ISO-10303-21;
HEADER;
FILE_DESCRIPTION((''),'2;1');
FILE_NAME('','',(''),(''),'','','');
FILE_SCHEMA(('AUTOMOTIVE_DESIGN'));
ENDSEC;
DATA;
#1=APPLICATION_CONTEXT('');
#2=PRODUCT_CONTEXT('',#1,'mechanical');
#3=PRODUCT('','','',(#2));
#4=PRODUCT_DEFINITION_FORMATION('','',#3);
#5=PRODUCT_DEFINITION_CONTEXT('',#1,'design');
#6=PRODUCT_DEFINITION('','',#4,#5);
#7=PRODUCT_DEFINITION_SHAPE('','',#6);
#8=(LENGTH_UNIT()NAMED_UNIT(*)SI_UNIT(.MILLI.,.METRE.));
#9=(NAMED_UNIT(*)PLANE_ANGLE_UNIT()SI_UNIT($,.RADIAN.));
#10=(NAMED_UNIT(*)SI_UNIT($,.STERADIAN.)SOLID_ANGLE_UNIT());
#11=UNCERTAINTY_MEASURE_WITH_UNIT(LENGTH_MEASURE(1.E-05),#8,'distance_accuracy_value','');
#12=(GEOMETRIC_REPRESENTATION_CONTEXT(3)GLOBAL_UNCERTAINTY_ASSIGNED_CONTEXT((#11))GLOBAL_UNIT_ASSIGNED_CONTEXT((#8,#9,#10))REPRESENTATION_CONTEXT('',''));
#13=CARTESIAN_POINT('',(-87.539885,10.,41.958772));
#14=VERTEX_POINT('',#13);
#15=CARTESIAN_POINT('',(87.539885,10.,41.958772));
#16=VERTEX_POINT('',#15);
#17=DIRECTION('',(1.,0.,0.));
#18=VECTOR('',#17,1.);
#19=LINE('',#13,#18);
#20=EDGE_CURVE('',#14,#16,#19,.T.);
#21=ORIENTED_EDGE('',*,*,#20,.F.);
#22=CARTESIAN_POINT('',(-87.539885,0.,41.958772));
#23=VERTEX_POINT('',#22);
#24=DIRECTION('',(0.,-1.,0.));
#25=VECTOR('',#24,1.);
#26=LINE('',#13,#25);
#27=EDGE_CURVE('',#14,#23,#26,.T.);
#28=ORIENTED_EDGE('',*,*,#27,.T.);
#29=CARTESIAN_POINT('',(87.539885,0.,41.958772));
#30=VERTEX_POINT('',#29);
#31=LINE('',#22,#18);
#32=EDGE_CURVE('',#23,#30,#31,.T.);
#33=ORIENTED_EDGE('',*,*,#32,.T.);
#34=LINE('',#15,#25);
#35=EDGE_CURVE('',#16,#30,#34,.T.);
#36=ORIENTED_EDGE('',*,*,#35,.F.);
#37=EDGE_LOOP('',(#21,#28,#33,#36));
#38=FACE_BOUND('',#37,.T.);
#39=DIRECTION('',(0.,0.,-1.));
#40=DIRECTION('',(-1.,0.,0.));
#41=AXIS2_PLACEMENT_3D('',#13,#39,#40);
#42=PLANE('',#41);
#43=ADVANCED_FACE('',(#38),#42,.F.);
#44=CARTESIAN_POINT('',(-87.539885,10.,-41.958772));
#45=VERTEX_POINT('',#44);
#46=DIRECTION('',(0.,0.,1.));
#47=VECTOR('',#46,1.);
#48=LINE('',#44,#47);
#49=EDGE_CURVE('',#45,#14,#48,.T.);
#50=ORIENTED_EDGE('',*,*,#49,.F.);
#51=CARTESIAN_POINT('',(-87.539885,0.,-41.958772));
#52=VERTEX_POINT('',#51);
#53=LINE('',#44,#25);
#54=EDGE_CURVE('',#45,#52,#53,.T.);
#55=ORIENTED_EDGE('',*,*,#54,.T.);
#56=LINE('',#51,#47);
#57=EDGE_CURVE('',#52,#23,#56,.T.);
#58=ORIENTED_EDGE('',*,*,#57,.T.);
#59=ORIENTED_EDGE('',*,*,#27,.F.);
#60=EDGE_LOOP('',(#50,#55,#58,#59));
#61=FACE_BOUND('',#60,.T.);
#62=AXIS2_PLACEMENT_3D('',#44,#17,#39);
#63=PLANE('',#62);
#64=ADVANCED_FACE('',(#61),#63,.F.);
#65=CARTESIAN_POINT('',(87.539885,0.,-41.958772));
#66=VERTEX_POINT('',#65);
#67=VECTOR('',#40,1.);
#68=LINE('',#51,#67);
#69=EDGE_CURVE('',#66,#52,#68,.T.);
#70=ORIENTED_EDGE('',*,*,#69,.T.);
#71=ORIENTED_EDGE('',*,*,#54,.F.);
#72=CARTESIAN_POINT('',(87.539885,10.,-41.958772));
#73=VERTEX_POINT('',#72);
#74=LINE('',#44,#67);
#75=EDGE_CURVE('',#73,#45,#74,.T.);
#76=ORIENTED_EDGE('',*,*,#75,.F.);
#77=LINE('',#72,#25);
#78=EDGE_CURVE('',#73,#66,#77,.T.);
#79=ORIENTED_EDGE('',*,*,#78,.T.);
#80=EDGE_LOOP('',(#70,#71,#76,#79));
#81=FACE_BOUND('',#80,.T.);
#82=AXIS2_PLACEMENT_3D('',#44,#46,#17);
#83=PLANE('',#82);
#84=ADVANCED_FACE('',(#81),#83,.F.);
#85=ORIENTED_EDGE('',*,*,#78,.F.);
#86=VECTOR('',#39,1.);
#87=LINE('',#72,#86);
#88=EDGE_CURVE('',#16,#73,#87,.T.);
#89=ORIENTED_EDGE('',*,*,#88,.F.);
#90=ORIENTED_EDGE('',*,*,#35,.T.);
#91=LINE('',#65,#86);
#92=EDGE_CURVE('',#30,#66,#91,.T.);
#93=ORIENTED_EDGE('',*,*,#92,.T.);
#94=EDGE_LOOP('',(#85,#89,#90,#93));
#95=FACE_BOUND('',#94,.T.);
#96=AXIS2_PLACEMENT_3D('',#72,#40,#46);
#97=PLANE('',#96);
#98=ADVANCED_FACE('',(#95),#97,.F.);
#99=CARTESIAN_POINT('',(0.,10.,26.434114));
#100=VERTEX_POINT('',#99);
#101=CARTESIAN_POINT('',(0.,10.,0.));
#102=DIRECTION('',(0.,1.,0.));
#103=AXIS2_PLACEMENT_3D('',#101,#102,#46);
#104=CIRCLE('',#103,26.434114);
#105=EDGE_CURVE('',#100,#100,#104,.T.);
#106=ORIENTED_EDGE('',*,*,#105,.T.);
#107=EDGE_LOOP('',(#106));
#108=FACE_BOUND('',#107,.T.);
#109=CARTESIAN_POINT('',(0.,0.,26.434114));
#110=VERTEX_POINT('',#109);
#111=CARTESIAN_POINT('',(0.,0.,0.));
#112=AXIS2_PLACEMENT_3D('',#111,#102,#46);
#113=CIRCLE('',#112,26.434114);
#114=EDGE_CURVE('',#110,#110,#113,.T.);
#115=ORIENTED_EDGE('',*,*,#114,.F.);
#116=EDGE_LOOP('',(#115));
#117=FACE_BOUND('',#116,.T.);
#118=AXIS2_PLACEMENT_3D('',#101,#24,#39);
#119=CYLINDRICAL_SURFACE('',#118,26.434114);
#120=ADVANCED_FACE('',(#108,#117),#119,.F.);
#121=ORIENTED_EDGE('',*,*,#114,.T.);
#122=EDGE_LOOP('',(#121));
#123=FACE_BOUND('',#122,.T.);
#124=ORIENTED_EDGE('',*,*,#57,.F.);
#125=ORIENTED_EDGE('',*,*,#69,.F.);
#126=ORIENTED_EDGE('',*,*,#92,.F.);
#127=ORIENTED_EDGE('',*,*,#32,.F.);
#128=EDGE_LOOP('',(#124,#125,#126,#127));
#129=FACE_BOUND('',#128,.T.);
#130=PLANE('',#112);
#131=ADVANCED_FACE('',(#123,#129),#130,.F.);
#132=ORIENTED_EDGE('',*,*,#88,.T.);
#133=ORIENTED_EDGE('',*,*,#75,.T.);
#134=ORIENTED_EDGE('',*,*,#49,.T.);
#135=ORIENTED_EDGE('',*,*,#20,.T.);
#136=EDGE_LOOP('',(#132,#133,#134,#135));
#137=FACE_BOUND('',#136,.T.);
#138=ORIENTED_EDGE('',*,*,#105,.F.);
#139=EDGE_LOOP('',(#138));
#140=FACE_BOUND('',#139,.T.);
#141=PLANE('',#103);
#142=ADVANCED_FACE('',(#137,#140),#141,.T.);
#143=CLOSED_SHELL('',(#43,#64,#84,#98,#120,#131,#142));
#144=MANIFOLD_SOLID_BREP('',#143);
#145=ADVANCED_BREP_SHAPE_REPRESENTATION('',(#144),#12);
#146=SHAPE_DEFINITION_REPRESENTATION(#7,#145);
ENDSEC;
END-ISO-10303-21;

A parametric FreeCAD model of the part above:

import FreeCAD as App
import Part
import Sketcher

V = App.Vector
Q = App.Units.Quantity

doc = App.newDocument("Part")
body = doc.addObject("PartDesign::Body", "Body")

sketch1 = body.newObject("Sketcher::SketchObject", "Sketch")
sketch1.AttachmentSupport = (doc.getObject("XZ_Plane"), [""])
sketch1.MapMode = "FlatFace"
sketch1.addGeometry([
    Part.LineSegment(V(-88, -42, 0), V(-88, 42, 0)),
    Part.LineSegment(V(-88, 42, 0), V(88, 42, 0)),
    Part.LineSegment(V(88, 42, 0), V(88, -42, 0)),
    Part.LineSegment(V(88, -42, 0), V(-88, -42, 0)),
    Part.Circle(V(0, 0, 0), V(0, 0, 1), 26),
], False)
sketch1.addConstraint([
    Sketcher.Constraint("Coincident", 0, 2, 1, 1),
    Sketcher.Constraint("Coincident", 1, 2, 2, 1),
    Sketcher.Constraint("Coincident", 2, 2, 3, 1),
    Sketcher.Constraint("Coincident", 3, 2, 0, 1),
    Sketcher.Constraint("Vertical", 0),
    Sketcher.Constraint("Horizontal", 1),
    Sketcher.Constraint("Vertical", 2),
    Sketcher.Constraint("Horizontal", 3),
    Sketcher.Constraint("Coincident", 4, 3, -1, 1),
    Sketcher.Constraint("Symmetric", 0, 2, 2, 2, -1, 1),
    Sketcher.Constraint("Diameter", 4, Q("52.868228 mm")),
    Sketcher.Constraint("DistanceX", 1, 1, 1, 2, Q("175.07977 mm")),
    Sketcher.Constraint("DistanceY", 0, 1, 0, 2, Q("83.917545 mm")),
])
pad1 = body.newObject("PartDesign::Pad", "Pad")
pad1.Profile = sketch1
pad1.Length = 10
pad1.Reversed = True

doc.recompute()
